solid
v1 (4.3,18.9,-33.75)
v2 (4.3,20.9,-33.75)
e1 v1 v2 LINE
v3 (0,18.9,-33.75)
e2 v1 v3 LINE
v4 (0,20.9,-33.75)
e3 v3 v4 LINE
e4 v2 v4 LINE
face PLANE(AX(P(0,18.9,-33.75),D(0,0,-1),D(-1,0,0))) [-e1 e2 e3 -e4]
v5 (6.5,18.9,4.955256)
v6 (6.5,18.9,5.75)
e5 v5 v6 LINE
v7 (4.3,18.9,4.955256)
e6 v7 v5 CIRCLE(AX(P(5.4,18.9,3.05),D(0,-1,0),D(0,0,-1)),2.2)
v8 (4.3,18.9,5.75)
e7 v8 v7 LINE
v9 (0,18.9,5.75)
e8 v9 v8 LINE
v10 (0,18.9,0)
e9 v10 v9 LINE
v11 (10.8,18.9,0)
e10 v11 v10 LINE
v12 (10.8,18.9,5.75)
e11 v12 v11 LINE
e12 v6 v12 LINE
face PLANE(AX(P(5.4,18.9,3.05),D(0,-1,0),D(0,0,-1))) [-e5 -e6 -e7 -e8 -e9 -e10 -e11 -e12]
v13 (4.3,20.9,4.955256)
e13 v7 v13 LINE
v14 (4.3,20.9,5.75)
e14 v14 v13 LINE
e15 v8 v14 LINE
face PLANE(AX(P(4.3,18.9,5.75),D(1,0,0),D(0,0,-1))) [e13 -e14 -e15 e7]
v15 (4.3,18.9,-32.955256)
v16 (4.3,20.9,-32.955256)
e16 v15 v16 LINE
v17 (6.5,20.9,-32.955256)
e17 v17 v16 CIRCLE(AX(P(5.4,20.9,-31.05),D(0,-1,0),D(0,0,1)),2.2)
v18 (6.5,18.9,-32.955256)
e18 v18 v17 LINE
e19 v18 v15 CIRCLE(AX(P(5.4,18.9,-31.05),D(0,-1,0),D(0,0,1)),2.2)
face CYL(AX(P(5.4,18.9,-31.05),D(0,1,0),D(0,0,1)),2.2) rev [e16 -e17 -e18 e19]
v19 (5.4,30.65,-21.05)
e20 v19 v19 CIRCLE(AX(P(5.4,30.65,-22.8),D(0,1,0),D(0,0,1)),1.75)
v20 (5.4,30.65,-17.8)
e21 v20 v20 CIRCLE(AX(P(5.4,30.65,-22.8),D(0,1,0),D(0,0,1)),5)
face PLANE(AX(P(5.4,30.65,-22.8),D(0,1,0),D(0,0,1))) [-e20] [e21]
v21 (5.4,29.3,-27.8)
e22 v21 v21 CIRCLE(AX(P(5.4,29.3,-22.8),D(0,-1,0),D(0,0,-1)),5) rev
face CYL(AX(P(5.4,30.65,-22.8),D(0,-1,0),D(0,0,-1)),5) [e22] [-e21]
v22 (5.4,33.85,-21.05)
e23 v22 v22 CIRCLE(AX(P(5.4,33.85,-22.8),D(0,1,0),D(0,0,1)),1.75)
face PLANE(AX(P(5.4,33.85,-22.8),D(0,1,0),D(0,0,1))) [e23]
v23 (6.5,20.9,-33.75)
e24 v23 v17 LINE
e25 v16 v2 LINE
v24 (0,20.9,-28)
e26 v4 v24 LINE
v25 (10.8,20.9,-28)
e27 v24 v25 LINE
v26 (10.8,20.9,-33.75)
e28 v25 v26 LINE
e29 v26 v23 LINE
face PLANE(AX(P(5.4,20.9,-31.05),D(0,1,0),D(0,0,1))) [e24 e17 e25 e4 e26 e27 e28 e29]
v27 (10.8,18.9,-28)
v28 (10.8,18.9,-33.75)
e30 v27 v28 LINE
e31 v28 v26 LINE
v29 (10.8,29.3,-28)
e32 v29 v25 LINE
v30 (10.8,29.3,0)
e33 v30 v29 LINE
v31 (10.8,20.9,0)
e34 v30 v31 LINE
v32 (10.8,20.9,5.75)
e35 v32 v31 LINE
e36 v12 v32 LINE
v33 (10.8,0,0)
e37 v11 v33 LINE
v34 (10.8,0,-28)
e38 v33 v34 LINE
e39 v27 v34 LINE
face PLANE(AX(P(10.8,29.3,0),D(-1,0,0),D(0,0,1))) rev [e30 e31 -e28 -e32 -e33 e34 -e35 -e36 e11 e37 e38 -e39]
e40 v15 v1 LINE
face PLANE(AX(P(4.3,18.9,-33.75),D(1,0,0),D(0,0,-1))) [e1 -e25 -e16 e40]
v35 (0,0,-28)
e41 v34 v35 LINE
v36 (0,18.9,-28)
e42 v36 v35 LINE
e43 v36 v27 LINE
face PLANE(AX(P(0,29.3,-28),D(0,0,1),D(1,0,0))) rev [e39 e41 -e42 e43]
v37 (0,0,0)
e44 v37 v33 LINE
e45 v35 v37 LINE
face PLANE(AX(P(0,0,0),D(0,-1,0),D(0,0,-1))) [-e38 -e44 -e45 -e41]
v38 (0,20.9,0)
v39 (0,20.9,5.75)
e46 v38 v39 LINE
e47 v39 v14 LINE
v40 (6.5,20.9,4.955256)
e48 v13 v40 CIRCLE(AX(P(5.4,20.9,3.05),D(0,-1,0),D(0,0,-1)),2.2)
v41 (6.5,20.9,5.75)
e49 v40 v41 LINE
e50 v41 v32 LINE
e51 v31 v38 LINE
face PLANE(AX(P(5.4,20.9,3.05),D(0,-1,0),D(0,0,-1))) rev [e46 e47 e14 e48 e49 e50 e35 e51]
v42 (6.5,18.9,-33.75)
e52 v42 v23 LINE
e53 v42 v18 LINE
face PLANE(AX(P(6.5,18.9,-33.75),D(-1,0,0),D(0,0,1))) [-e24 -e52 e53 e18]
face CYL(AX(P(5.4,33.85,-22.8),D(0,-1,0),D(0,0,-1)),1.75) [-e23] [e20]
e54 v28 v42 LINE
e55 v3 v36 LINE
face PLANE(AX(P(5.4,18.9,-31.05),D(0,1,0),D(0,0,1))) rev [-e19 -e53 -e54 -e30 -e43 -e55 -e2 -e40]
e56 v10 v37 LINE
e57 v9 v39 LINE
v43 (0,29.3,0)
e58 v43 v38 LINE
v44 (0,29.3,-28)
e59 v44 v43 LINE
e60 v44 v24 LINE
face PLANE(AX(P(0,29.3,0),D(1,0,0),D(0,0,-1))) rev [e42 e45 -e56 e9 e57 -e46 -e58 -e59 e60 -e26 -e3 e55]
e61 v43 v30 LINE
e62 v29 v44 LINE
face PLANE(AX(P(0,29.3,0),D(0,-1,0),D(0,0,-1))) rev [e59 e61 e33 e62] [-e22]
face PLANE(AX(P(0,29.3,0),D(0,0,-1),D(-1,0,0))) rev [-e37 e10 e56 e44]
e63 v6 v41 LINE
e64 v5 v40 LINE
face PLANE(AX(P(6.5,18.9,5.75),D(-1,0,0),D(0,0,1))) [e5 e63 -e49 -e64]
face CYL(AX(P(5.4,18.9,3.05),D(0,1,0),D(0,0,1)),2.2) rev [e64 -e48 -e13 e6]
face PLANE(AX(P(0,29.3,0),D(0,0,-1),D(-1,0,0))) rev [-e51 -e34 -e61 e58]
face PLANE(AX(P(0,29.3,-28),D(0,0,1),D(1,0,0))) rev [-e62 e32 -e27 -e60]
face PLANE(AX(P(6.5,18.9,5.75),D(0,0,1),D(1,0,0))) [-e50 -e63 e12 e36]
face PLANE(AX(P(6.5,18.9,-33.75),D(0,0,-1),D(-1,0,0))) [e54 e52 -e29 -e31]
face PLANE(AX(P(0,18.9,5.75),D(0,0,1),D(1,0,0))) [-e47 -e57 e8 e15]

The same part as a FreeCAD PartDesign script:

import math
import FreeCAD as App
import Part
import Sketcher
from FreeCAD import Vector
Q = App.Units.Quantity


def add_polygon(sketch, points):
    """Adds a closed chain of lines whose ends are joined by coincident constraints."""
    first, n = sketch.GeometryCount, len(points)
    for a, b in zip(points, points[1:] + points[:1]):
        sketch.addGeometry(Part.LineSegment(App.Vector(*a, 0), App.Vector(*b, 0)), False)
    for i in range(n):
        sketch.addConstraint(Sketcher.Constraint("Coincident", first + i, 2, first + (i + 1) % n, 1))

doc = App.newDocument("Part")
body = doc.addObject("PartDesign::Body", "Body")

sketch1 = body.newObject("Sketcher::SketchObject", "Sketch")
sketch1.AttachmentSupport = (doc.getObject("XZ_Plane"), [""])
sketch1.MapMode = "FlatFace"
add_polygon(sketch1, [(0, -28), (0, 0), (11, 0), (11, -28)])
sketch1.addConstraint([
    Sketcher.Constraint("Vertical", 0),
    Sketcher.Constraint("Horizontal", 1),
    Sketcher.Constraint("Vertical", 2),
    Sketcher.Constraint("Horizontal", 3),
    Sketcher.Constraint("Coincident", 0, 2, -1, 1),
    Sketcher.Constraint("DistanceY", 0, 1, 0, 2, Q("28 mm")),
    Sketcher.Constraint("DistanceX", 1, 1, 1, 2, Q("10.8 mm")),
])
pad1 = body.newObject("PartDesign::Pad", "Pad")
pad1.Profile = sketch1
pad1.Length = 29.3
pad1.Reversed = True

sketch2 = body.newObject("Sketcher::SketchObject", "Sketch001")
sketch2.AttachmentSupport = (doc.getObject("XZ_Plane"), [""])
sketch2.MapMode = "FlatFace"
sketch2.AttachmentOffset = App.Placement(Vector(0, 0, -20.9), App.Rotation())
sketch2.addGeometry([
    Part.LineSegment(Vector(0, -28, 0), Vector(10.8, -28, 0)),
    Part.LineSegment(Vector(10.8, -28, 0), Vector(10.8, -33.8, 0)),
    Part.LineSegment(Vector(10.8, -33.8, 0), Vector(6.5, -33.8, 0)),
    Part.LineSegment(Vector(6.5, -33.8, 0), Vector(6.5, -33, 0)),
    Part.ArcOfCircle(Part.Circle(Vector(5.4, -31.1, 0), Vector(0, 0, 1), 2.2), math.radians(-60), math.radians(240)),
    Part.LineSegment(Vector(4.3, -33, 0), Vector(4.3, -33.8, 0)),
    Part.LineSegment(Vector(4.3, -33.8, 0), Vector(0, -33.8, 0)),
    Part.LineSegment(Vector(0, -33.8, 0), Vector(0, -28, 0)),
    Part.LineSegment(Vector(10.8, 5.8, 0), Vector(10.8, 0, 0)),
    Part.LineSegment(Vector(10.8, 0, 0), Vector(0, 0, 0)),
    Part.LineSegment(Vector(0, 0, 0), Vector(0, 5.8, 0)),
    Part.LineSegment(Vector(0, 5.8, 0), Vector(4.3, 5.8, 0)),
    Part.LineSegment(Vector(4.3, 5.8, 0), Vector(4.3, 5, 0)),
    Part.ArcOfCircle(Part.Circle(Vector(5.4, 3, 0), Vector(0, 0, 1), 2.2), math.radians(120), math.radians(420)),
    Part.LineSegment(Vector(6.5, 5, 0), Vector(6.5, 5.8, 0)),
    Part.LineSegment(Vector(6.5, 5.8, 0), Vector(10.8, 5.8, 0)),
], False)
sketch2.addConstraint([
    Sketcher.Constraint("Coincident", 0, 2, 1, 1),
    Sketcher.Constraint("Coincident", 1, 2, 2, 1),
    Sketcher.Constraint("Coincident", 2, 2, 3, 1),
    Sketcher.Constraint("Coincident", 3, 2, 4, 1),
    Sketcher.Constraint("Coincident", 4, 2, 5, 1),
    Sketcher.Constraint("Coincident", 5, 2, 6, 1),
    Sketcher.Constraint("Coincident", 6, 2, 7, 1),
    Sketcher.Constraint("Coincident", 7, 2, 0, 1),
    Sketcher.Constraint("Coincident", 8, 2, 9, 1),
    Sketcher.Constraint("Coincident", 9, 2, 10, 1),
    Sketcher.Constraint("Coincident", 10, 2, 11, 1),
    Sketcher.Constraint("Coincident", 11, 2, 12, 1),
    Sketcher.Constraint("Coincident", 12, 2, 13, 1),
    Sketcher.Constraint("Coincident", 13, 2, 14, 1),
    Sketcher.Constraint("Coincident", 14, 2, 15, 1),
    Sketcher.Constraint("Coincident", 15, 2, 8, 1),
    Sketcher.Constraint("Horizontal", 0),
    Sketcher.Constraint("Vertical", 1),
    Sketcher.Constraint("Horizontal", 2),
    Sketcher.Constraint("Vertical", 3),
    Sketcher.Constraint("Vertical", 5),
    Sketcher.Constraint("Horizontal", 6),
    Sketcher.Constraint("Vertical", 7),
    Sketcher.Constraint("Vertical", 8),
    Sketcher.Constraint("Horizontal", 9),
    Sketcher.Constraint("Vertical", 10),
    Sketcher.Constraint("Horizontal", 11),
    Sketcher.Constraint("Vertical", 12),
    Sketcher.Constraint("Vertical", 14),
    Sketcher.Constraint("Horizontal", 15),
    Sketcher.Constraint("Coincident", 9, 2, -1, 1),
    Sketcher.Constraint("Equal", 4, 13),
    Sketcher.Constraint("PointOnObject", 6, 2, -2),
    Sketcher.Constraint("Horizontal", 3, 2, 4, 2),
    Sketcher.Constraint("Horizontal", 2, 2, 5, 2),
    Sketcher.Constraint("Horizontal", 12, 2, 13, 2),
    Sketcher.Constraint("Horizontal", 11, 2, 14, 2),
    Sketcher.Constraint("Vertical", 4, 3, 13, 3),
    Sketcher.Constraint("Vertical", 1, 2, 8, 2),
    Sketcher.Constraint("Vertical", 5, 2, 11, 2),
    Sketcher.Constraint("Equal", 2, 6),
    Sketcher.Constraint("Equal", 7, 8),
    Sketcher.Constraint("Equal", 5, 12),
    Sketcher.Constraint("Radius", 4, Q("2.2 mm")),
    Sketcher.Constraint("DistanceX", 0, 1, 0, 2, Q("10.8 mm")),
    Sketcher.Constraint("DistanceX", 2, 2, 2, 1, Q("4.3 mm")),
    Sketcher.Constraint("DistanceY", 0, 2, -1, 1, Q("28 mm")),
    Sketcher.Constraint("DistanceY", 1, 2, 1, 1, Q("5.75 mm")),
    Sketcher.Constraint("DistanceY", 4, 3, 13, 3, Q("34.1 mm")),
])
pad2 = body.newObject("PartDesign::Pad", "Pad001")
pad2.Profile = sketch2
pad2.Length = 2

sketch3 = body.newObject("Sketcher::SketchObject", "Sketch002")
sketch3.AttachmentSupport = (doc.getObject("XZ_Plane"), [""])
sketch3.MapMode = "FlatFace"
sketch3.AttachmentOffset = App.Placement(Vector(0, 0, -29.3), App.Rotation())
sketch3.addGeometry(Part.Circle(Vector(5, -23, 0), Vector(0, 0, 1), 5), False)
sketch3.addConstraint([
    Sketcher.Constraint("Diameter", 0, Q("10 mm")),
    Sketcher.Constraint("DistanceX", -1, 1, 0, 3, Q("5.4 mm")),
    Sketcher.Constraint("DistanceY", 0, 3, -1, 1, Q("22.8 mm")),
])
pad3 = body.newObject("PartDesign::Pad", "Pad002")
pad3.Profile = sketch3
pad3.Length = 1.35
pad3.Reversed = True

sketch4 = body.newObject("Sketcher::SketchObject", "Sketch003")
sketch4.AttachmentSupport = (doc.getObject("XZ_Plane"), [""])
sketch4.MapMode = "FlatFace"
sketch4.AttachmentOffset = App.Placement(Vector(0, 0, -30.65), App.Rotation())
sketch4.addGeometry(Part.Circle(Vector(5.4, -22.8, 0), Vector(0, 0, 1), 1.8), False)
sketch4.addConstraint([
    Sketcher.Constraint("Diameter", 0, Q("3.5 mm")),
    Sketcher.Constraint("DistanceX", -1, 1, 0, 3, Q("5.4 mm")),
    Sketcher.Constraint("DistanceY", 0, 3, -1, 1, Q("22.8 mm")),
])
pad4 = body.newObject("PartDesign::Pad", "Pad003")
pad4.Profile = sketch4
pad4.Length = 3.2
pad4.Reversed = True

doc.recompute()
